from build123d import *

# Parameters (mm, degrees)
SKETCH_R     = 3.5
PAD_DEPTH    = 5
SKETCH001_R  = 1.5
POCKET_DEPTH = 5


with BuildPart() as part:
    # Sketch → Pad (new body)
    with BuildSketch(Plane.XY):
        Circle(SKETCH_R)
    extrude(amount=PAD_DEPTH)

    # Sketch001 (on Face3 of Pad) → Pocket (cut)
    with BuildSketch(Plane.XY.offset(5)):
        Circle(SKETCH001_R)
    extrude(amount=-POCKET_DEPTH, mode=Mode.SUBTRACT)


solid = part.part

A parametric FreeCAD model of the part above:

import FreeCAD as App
import Part
import Sketcher
from FreeCAD import Vector

doc = App.newDocument("Part")
body = doc.addObject("PartDesign::Body", "Body")

# Sketch on XY plane
sketch1 = body.newObject("Sketcher::SketchObject", "Sketch")
sketch1.AttachmentSupport = (doc.getObject("XY_Plane"), [""])
sketch1.MapMode = "FlatFace"
sketch1.addGeometry(Part.Circle(Vector(0, 0, 0), Vector(0, 0, 1), 3.5), False)
sketch1.addConstraint(Sketcher.Constraint("Coincident", 0, 3, -1, 1))
sketch1.addConstraint(Sketcher.Constraint("Diameter", 0, 7.0))
pad1 = body.newObject("PartDesign::Pad", "Pad")
pad1.Profile = sketch1
pad1.Length = 5

# Sketch on XY plane
sketch2 = body.newObject("Sketcher::SketchObject", "Sketch001")
sketch2.AttachmentSupport = (doc.getObject("XY_Plane"), [""])
sketch2.MapMode = "FlatFace"
sketch2.AttachmentOffset = App.Placement(Vector(0, 0, 5), App.Rotation())
sketch2.addGeometry(Part.Circle(Vector(0, 0, 0), Vector(0, 0, 1), 1.5), False)
sketch2.addConstraint(Sketcher.Constraint("Coincident", 0, 3, -1, 1))
sketch2.addConstraint(Sketcher.Constraint("Diameter", 0, 3.0))
pocket1 = body.newObject("PartDesign::Pocket", "Pocket")
pocket1.Profile = sketch2
pocket1.Length = 5

doc.recompute()
